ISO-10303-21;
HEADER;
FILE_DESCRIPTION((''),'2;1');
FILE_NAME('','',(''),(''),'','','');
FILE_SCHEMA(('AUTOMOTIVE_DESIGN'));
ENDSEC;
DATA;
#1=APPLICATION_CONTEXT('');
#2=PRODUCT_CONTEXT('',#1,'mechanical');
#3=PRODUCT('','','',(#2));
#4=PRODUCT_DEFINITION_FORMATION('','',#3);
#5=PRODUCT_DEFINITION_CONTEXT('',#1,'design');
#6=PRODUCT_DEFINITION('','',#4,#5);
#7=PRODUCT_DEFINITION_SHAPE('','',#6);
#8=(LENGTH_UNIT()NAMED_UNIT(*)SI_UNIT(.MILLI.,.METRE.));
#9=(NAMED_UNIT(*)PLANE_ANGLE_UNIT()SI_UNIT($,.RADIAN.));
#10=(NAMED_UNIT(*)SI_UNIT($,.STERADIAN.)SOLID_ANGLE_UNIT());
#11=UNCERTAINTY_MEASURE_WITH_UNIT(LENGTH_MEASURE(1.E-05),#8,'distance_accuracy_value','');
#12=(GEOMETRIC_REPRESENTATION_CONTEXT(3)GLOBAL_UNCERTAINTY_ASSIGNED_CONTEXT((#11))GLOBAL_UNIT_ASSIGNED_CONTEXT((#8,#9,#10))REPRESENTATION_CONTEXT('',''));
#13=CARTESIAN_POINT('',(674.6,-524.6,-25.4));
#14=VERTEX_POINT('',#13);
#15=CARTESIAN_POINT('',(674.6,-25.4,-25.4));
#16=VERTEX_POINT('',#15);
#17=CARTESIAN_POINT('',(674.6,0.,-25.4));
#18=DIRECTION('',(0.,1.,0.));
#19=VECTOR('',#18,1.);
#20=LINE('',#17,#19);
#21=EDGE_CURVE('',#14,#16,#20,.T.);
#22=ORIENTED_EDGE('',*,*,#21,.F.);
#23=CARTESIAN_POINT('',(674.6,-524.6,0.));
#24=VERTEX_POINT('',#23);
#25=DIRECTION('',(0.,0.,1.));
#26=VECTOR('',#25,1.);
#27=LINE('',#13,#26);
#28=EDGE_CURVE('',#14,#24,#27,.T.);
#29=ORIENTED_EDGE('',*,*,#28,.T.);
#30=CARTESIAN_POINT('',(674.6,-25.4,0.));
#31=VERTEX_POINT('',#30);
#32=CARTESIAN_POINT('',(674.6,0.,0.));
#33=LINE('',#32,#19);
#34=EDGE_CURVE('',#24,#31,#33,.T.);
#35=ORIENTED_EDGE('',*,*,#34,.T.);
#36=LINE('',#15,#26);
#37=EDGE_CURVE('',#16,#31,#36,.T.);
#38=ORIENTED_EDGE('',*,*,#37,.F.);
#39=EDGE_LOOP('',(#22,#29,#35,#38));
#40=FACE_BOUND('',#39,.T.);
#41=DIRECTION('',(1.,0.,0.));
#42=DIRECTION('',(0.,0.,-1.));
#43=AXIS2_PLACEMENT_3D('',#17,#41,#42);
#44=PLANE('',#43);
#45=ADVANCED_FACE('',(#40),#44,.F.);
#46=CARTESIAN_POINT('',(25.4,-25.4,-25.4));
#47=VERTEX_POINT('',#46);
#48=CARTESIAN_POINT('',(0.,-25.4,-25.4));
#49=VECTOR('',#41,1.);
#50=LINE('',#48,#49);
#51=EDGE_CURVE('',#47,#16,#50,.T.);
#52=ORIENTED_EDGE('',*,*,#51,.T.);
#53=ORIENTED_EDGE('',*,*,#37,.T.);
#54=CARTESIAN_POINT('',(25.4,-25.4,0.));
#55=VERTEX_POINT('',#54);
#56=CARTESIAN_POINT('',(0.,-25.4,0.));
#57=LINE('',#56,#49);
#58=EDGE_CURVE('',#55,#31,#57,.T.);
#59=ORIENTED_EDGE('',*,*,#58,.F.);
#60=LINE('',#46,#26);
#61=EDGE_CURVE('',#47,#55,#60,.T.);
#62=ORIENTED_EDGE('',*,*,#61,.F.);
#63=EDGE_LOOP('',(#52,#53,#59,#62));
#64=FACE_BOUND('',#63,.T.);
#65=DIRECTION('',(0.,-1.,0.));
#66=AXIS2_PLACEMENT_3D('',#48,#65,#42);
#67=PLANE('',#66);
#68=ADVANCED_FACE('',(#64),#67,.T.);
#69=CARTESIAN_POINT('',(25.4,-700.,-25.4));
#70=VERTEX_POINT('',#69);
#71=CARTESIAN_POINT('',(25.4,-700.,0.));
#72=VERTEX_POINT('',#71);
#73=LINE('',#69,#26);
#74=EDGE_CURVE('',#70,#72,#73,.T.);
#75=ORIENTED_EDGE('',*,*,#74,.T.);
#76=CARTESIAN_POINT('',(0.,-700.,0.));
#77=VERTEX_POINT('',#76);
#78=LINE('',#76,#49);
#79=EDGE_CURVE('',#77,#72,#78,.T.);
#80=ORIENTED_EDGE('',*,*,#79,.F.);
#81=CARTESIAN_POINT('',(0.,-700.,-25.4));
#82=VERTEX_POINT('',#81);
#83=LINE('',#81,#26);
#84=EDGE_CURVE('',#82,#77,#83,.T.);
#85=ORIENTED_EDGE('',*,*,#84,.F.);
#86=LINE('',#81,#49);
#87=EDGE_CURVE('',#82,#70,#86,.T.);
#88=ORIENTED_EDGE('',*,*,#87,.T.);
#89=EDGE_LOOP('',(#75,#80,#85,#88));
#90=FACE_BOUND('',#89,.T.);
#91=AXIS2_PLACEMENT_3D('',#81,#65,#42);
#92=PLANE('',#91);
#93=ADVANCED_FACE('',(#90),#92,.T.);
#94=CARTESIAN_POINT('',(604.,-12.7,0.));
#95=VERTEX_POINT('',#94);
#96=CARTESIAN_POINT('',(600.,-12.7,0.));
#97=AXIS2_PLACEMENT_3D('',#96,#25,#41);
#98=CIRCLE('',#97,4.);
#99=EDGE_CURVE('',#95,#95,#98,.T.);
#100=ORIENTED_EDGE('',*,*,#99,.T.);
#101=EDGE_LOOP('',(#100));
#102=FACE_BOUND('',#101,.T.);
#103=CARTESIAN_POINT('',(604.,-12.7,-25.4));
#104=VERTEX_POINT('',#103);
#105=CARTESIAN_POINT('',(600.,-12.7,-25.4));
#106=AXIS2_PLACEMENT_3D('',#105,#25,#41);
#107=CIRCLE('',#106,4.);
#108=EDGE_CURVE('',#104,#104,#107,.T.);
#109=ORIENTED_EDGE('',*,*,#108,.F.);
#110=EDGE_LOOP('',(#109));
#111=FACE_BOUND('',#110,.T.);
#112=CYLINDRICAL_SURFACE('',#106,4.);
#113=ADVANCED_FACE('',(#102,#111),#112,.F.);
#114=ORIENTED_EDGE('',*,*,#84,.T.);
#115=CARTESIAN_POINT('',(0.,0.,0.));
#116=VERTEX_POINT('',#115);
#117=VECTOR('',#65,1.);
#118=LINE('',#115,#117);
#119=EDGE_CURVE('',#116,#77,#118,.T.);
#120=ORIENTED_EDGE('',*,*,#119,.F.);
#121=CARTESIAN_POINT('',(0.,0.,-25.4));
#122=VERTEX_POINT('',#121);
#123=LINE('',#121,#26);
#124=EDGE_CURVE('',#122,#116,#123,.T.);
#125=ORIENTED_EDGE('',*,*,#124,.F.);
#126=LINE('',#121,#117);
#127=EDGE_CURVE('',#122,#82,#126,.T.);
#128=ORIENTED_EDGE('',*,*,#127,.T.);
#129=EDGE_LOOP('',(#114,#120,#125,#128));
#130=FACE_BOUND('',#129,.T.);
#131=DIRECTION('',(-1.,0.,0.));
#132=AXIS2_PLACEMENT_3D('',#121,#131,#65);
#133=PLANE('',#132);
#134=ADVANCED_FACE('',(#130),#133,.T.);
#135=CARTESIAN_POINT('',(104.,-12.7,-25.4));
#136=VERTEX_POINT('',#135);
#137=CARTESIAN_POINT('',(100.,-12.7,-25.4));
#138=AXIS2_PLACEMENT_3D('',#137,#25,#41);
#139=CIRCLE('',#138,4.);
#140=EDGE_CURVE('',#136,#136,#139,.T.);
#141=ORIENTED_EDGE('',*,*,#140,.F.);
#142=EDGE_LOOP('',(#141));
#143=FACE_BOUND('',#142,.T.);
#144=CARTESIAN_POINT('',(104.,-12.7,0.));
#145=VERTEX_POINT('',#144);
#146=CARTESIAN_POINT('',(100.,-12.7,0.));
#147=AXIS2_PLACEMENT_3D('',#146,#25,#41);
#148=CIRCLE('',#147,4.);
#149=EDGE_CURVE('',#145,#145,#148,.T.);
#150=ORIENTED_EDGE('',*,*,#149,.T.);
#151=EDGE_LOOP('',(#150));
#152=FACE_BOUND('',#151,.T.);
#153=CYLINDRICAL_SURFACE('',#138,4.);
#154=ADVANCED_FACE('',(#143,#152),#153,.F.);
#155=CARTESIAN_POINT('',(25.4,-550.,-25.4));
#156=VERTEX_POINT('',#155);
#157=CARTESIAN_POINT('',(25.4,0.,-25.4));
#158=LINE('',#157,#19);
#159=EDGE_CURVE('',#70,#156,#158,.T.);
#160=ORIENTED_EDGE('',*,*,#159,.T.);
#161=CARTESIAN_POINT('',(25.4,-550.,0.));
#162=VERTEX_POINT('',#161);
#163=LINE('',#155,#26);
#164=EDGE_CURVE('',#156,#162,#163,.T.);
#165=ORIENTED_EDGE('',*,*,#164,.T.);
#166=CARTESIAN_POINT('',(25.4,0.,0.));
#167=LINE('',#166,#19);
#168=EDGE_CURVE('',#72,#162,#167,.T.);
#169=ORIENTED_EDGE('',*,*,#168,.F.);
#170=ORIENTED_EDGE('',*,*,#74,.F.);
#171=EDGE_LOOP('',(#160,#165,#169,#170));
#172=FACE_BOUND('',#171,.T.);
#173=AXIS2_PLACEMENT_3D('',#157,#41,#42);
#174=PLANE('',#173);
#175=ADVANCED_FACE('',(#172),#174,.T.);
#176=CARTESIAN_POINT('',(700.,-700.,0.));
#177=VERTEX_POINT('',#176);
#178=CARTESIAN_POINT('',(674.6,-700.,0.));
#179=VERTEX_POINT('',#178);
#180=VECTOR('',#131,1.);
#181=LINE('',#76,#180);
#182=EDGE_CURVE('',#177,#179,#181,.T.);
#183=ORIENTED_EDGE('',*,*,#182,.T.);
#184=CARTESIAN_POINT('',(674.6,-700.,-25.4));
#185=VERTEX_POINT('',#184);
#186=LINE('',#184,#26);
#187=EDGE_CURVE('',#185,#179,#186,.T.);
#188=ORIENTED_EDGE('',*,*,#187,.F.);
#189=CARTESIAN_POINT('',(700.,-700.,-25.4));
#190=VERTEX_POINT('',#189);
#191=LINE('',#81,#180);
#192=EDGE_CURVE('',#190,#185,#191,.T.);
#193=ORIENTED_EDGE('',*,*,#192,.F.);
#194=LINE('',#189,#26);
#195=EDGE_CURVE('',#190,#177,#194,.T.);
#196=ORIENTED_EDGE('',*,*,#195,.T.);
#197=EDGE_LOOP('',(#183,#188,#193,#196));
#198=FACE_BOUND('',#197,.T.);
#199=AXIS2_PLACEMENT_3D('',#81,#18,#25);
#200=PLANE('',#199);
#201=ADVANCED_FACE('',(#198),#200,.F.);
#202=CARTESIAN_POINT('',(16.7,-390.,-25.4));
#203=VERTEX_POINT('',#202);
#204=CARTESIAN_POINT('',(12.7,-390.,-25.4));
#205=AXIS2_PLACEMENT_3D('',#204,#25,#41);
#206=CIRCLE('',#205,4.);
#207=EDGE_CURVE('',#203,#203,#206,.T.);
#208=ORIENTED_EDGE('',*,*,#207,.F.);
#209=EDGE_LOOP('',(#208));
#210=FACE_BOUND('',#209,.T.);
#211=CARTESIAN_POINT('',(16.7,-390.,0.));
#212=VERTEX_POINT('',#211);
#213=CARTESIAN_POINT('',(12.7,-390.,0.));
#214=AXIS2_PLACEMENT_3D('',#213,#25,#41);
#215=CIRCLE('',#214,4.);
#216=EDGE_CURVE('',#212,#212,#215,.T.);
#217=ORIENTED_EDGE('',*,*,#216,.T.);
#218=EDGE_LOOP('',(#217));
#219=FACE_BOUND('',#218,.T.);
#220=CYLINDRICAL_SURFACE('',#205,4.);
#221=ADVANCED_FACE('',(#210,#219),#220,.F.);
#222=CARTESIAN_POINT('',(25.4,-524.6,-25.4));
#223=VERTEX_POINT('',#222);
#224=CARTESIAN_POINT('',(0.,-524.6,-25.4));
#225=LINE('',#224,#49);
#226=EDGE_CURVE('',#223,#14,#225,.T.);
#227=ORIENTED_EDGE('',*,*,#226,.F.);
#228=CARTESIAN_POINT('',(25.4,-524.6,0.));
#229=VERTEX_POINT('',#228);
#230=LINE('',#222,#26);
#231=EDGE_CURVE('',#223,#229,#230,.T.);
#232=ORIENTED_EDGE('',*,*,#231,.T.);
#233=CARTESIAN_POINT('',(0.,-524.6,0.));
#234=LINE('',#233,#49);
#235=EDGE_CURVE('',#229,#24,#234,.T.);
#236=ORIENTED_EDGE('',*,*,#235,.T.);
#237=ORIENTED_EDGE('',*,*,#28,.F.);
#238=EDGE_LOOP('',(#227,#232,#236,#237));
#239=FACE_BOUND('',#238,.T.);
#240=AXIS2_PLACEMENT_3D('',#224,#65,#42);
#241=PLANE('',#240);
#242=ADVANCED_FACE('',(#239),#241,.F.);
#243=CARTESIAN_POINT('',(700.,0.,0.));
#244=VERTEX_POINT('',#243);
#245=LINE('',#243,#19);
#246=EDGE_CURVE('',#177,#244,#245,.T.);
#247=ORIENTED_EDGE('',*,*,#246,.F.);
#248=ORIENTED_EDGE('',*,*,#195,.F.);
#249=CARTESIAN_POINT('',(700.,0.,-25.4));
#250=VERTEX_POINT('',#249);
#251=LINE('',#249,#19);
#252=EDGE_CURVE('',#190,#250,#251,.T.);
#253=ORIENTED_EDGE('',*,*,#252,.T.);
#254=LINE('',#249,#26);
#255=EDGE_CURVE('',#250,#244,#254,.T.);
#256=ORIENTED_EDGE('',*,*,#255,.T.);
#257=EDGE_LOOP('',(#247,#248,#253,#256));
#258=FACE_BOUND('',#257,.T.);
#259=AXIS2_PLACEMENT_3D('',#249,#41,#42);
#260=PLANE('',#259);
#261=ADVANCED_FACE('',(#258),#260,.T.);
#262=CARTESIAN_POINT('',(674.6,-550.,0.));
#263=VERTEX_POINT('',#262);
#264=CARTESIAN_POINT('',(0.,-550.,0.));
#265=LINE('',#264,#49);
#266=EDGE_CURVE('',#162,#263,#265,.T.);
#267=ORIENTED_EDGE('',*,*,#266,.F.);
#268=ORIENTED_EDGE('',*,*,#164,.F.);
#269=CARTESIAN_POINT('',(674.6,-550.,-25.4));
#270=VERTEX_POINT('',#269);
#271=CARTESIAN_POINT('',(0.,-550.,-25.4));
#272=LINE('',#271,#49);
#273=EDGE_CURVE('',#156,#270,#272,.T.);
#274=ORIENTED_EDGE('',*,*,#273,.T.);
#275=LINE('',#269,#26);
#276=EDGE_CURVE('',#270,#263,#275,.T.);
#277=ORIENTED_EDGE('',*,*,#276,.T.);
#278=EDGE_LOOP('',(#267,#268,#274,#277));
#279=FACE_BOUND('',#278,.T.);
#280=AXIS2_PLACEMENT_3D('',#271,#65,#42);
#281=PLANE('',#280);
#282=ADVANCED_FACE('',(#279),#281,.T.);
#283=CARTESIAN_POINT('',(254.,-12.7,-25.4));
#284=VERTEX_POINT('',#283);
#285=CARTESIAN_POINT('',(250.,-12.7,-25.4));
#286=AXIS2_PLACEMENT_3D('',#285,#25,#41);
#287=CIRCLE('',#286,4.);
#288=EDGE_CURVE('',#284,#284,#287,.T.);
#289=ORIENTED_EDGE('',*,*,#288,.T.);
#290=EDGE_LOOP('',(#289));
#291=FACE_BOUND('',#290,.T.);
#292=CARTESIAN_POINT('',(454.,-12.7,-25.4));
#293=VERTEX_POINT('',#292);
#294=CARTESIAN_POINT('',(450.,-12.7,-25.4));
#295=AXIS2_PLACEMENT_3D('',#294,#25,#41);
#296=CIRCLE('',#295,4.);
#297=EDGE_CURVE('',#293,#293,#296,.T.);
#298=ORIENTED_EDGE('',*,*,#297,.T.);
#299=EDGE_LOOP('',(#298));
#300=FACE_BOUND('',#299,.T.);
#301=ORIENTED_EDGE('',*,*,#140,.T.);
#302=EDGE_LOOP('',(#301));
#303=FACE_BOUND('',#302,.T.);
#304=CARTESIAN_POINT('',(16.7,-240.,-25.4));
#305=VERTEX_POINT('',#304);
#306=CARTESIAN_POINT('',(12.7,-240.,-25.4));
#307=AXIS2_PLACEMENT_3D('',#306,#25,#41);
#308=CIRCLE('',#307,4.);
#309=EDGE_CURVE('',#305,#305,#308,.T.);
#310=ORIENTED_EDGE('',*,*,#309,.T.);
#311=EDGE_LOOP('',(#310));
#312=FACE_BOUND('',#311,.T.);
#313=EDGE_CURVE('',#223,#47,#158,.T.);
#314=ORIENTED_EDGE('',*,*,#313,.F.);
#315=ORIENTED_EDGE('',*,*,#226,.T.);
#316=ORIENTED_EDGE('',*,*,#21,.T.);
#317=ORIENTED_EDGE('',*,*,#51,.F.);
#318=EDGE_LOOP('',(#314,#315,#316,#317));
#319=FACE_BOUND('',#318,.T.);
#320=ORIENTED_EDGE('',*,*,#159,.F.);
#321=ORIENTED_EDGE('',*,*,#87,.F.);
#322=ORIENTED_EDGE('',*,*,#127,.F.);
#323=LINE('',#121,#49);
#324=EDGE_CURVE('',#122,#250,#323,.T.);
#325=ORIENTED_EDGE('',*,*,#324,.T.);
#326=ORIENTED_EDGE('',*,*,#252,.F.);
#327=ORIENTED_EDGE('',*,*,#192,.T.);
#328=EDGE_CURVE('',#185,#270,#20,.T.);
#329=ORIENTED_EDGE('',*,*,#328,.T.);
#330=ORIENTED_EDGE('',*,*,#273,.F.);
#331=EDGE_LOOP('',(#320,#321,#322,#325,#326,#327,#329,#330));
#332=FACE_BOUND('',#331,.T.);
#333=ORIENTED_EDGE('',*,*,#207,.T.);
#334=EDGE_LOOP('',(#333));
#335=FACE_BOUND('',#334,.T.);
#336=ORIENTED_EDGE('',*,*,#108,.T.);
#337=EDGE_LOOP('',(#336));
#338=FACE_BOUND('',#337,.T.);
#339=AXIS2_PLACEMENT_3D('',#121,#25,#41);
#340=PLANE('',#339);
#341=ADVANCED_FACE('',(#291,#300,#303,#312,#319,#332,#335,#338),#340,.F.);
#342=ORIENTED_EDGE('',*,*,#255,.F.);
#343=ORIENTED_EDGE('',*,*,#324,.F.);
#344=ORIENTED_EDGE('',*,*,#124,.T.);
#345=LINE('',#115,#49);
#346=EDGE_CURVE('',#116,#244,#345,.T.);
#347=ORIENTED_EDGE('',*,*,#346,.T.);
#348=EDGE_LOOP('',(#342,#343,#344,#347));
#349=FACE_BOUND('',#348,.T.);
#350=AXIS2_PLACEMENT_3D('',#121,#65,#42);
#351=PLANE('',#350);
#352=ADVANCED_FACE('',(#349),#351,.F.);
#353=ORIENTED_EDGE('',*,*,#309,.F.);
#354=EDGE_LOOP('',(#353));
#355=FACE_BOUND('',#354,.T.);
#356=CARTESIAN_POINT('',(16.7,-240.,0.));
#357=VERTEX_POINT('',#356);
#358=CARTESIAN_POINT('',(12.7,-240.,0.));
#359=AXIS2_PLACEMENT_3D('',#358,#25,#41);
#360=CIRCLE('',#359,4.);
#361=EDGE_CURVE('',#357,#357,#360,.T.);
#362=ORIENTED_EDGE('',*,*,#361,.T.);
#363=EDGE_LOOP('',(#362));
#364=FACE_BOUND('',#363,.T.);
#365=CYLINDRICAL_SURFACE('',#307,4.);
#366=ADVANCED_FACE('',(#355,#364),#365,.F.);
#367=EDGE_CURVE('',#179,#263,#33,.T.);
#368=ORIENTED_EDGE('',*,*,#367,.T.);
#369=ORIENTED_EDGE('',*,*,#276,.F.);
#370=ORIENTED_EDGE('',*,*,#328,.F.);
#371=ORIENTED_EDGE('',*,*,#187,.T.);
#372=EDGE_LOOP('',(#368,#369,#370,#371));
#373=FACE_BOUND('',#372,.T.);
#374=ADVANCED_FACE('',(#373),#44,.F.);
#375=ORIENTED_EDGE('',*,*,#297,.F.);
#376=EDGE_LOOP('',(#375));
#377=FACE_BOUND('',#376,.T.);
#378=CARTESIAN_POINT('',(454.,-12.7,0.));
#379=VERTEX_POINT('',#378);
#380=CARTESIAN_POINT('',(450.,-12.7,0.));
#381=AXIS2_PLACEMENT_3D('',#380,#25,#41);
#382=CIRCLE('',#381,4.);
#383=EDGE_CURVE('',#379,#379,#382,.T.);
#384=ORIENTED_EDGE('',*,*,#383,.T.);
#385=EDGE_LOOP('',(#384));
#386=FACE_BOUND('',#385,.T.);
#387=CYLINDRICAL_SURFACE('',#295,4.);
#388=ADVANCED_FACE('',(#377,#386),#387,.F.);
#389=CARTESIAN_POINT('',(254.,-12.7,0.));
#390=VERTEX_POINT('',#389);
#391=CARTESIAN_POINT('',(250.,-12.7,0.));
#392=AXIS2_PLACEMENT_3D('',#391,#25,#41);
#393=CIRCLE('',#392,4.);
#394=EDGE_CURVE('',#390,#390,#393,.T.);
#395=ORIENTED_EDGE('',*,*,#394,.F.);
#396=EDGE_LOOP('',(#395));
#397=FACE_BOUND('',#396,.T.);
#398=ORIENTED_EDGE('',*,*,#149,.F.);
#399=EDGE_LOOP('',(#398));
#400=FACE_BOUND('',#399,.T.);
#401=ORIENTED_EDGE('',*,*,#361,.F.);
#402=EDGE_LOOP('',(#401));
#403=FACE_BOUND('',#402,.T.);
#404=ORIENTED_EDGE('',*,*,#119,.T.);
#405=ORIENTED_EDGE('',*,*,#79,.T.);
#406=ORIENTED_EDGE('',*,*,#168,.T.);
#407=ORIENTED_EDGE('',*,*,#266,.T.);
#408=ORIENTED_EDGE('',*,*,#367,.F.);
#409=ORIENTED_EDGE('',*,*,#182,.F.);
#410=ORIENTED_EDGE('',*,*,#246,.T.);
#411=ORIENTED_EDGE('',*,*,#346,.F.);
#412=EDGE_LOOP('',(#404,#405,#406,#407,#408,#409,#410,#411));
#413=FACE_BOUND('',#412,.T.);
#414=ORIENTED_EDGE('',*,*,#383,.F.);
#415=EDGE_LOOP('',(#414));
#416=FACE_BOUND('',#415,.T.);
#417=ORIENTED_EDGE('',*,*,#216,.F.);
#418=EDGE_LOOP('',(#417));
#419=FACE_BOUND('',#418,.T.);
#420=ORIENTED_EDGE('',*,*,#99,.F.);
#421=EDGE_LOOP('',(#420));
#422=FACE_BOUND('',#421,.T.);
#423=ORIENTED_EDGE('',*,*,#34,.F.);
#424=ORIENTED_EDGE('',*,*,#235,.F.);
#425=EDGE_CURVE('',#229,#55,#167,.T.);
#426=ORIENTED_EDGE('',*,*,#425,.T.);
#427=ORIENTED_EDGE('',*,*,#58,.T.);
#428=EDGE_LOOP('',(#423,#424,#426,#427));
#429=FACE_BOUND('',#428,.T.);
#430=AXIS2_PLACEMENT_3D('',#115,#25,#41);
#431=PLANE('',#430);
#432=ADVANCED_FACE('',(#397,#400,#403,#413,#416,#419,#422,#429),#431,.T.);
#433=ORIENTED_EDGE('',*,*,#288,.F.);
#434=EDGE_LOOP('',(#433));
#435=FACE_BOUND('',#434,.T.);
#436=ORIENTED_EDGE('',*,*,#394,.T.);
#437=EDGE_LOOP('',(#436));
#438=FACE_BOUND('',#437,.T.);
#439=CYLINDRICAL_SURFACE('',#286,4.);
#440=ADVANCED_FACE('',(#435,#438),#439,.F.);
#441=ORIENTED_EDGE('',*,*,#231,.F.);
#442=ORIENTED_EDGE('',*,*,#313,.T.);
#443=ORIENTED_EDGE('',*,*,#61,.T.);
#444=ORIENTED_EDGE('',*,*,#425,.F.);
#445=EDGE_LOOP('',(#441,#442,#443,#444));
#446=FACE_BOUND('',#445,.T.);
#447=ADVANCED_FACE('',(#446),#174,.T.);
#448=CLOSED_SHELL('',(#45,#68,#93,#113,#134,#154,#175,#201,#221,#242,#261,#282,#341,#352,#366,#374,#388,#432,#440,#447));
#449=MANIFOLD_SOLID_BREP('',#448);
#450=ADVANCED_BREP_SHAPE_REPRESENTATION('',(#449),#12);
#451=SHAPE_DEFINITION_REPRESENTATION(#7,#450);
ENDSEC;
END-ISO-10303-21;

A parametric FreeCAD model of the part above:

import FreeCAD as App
import Part
import Sketcher
Q = App.Units.Quantity


def add_polygon(sketch, points):
    """Adds a closed chain of lines whose ends are joined by coincident constraints."""
    first, n = sketch.GeometryCount, len(points)
    for a, b in zip(points, points[1:] + points[:1]):
        sketch.addGeometry(Part.LineSegment(App.Vector(*a, 0), App.Vector(*b, 0)), False)
    for i in range(n):
        sketch.addConstraint(Sketcher.Constraint("Coincident", first + i, 2, first + (i + 1) % n, 1))

doc = App.newDocument("Part")
body = doc.addObject("PartDesign::Body", "Body")

# Sketch on XY plane
sketch1 = doc.addObject("Sketcher::SketchObject", "Sketch")
body.addObject(sketch1)
sketch1.AttachmentSupport = (doc.XY_Plane, [""])
sketch1.MapMode = "FlatFace"
add_polygon(sketch1, [(25, -700), (25, -550), (675, -550), (675, -700), (700, -700), (700, 0), (0, 0), (0, -700)])  # lines 0-7
add_polygon(sketch1, [(25, -525), (25, -25), (675, -25), (675, -525)])  # lines 8-11
sketch1.addConstraint([
    Sketcher.Constraint("Vertical", 0),
    Sketcher.Constraint("Horizontal", 1),
    Sketcher.Constraint("Vertical", 2),
    Sketcher.Constraint("Horizontal", 3),
    Sketcher.Constraint("Vertical", 4),
    Sketcher.Constraint("Horizontal", 5),
    Sketcher.Constraint("Vertical", 6),
    Sketcher.Constraint("Horizontal", 7),
    Sketcher.Constraint("Vertical", 8),
    Sketcher.Constraint("Horizontal", 9),
    Sketcher.Constraint("Vertical", 10),
    Sketcher.Constraint("Horizontal", 11),
    Sketcher.Constraint("Coincident", 5, 2, -1, 1),
    Sketcher.Constraint("Horizontal", 3, 2, 6, 2),
    Sketcher.Constraint("Vertical", 7, 2, 8, 2),
    Sketcher.Constraint("Vertical", 2, 2, 9, 2),
    Sketcher.Constraint("Equal", 3, 7),
    Sketcher.Constraint("Equal", 5, 4),
    Sketcher.Constraint("DistanceX", 5, 2, 5, 1, Q("700 mm")),
    Sketcher.Constraint("DistanceY", 0, 1, 0, 2, Q("150 mm")),
    Sketcher.Constraint("DistanceX", 1, 1, 1, 2, Q("649.2 mm")),
    Sketcher.Constraint("DistanceY", 8, 1, 8, 2, Q("499.2 mm")),
    Sketcher.Constraint("DistanceY", 8, 2, -1, 1, Q("25.4 mm")),
])
pad1 = doc.addObject("PartDesign::Pad", "Pad")
body.addObject(pad1)
pad1.Profile = sketch1
pad1.Length = 25.4
pad1.Reversed = True

# Sketch on XY plane
sketch2 = doc.addObject("Sketcher::SketchObject", "Sketch001")
body.addObject(sketch2)
sketch2.AttachmentSupport = (doc.XY_Plane, [""])
sketch2.MapMode = "FlatFace"
sketch2.addGeometry([
    Part.Circle(App.Vector(12.7, -240, 0), App.Vector(0, 0, 1), 4),
    Part.Circle(App.Vector(12.7, -390, 0), App.Vector(0, 0, 1), 4),
], False)
sketch2.addConstraint([
    Sketcher.Constraint("Equal", 0, 1),
    Sketcher.Constraint("Vertical", 0, 3, 1, 3),
    Sketcher.Constraint("Diameter", 0, Q("8 mm")),
    Sketcher.Constraint("DistanceY", 0, 3, -1, 1, Q("240 mm")),
    Sketcher.Constraint("DistanceY", 1, 3, -1, 1, Q("390 mm")),
    Sketcher.Constraint("DistanceX", -1, 1, 0, 3, Q("12.7 mm")),
])
pocket1 = doc.addObject("PartDesign::Pocket", "Pocket")
body.addObject(pocket1)
pocket1.Profile = sketch2
pocket1.Length = 25.4

# Sketch on XY plane
sketch3 = doc.addObject("Sketcher::SketchObject", "Sketch002")
body.addObject(sketch3)
sketch3.AttachmentSupport = (doc.XY_Plane, [""])
sketch3.MapMode = "FlatFace"
sketch3.addGeometry([
    Part.Circle(App.Vector(100, -12.7, 0), App.Vector(0, 0, 1), 4),
    Part.Circle(App.Vector(250, -12.7, 0), App.Vector(0, 0, 1), 4),
    Part.Circle(App.Vector(600, -12.7, 0), App.Vector(0, 0, 1), 4),
    Part.Circle(App.Vector(450, -12.7, 0), App.Vector(0, 0, 1), 4),
], False)
sketch3.addConstraint([
    Sketcher.Constraint("Equal", 0, 1),
    Sketcher.Constraint("Equal", 1, 2),
    Sketcher.Constraint("Equal", 2, 3),
    Sketcher.Constraint("Horizontal", 0, 3, 1, 3),
    Sketcher.Constraint("Horizontal", 1, 3, 2, 3),
    Sketcher.Constraint("Horizontal", 2, 3, 3, 3),
    Sketcher.Constraint("Diameter", 0, Q("8 mm")),
    Sketcher.Constraint("DistanceX", -1, 1, 0, 3, Q("100 mm")),
    Sketcher.Constraint("DistanceX", -1, 1, 1, 3, Q("250 mm")),
    Sketcher.Constraint("DistanceX", -1, 1, 2, 3, Q("600 mm")),
    Sketcher.Constraint("DistanceX", -1, 1, 3, 3, Q("450 mm")),
    Sketcher.Constraint("DistanceY", 0, 3, -1, 1, Q("12.7 mm")),
])
pocket2 = doc.addObject("PartDesign::Pocket", "Pocket001")
body.addObject(pocket2)
pocket2.Profile = sketch3
pocket2.Length = 25.4

doc.recompute()
